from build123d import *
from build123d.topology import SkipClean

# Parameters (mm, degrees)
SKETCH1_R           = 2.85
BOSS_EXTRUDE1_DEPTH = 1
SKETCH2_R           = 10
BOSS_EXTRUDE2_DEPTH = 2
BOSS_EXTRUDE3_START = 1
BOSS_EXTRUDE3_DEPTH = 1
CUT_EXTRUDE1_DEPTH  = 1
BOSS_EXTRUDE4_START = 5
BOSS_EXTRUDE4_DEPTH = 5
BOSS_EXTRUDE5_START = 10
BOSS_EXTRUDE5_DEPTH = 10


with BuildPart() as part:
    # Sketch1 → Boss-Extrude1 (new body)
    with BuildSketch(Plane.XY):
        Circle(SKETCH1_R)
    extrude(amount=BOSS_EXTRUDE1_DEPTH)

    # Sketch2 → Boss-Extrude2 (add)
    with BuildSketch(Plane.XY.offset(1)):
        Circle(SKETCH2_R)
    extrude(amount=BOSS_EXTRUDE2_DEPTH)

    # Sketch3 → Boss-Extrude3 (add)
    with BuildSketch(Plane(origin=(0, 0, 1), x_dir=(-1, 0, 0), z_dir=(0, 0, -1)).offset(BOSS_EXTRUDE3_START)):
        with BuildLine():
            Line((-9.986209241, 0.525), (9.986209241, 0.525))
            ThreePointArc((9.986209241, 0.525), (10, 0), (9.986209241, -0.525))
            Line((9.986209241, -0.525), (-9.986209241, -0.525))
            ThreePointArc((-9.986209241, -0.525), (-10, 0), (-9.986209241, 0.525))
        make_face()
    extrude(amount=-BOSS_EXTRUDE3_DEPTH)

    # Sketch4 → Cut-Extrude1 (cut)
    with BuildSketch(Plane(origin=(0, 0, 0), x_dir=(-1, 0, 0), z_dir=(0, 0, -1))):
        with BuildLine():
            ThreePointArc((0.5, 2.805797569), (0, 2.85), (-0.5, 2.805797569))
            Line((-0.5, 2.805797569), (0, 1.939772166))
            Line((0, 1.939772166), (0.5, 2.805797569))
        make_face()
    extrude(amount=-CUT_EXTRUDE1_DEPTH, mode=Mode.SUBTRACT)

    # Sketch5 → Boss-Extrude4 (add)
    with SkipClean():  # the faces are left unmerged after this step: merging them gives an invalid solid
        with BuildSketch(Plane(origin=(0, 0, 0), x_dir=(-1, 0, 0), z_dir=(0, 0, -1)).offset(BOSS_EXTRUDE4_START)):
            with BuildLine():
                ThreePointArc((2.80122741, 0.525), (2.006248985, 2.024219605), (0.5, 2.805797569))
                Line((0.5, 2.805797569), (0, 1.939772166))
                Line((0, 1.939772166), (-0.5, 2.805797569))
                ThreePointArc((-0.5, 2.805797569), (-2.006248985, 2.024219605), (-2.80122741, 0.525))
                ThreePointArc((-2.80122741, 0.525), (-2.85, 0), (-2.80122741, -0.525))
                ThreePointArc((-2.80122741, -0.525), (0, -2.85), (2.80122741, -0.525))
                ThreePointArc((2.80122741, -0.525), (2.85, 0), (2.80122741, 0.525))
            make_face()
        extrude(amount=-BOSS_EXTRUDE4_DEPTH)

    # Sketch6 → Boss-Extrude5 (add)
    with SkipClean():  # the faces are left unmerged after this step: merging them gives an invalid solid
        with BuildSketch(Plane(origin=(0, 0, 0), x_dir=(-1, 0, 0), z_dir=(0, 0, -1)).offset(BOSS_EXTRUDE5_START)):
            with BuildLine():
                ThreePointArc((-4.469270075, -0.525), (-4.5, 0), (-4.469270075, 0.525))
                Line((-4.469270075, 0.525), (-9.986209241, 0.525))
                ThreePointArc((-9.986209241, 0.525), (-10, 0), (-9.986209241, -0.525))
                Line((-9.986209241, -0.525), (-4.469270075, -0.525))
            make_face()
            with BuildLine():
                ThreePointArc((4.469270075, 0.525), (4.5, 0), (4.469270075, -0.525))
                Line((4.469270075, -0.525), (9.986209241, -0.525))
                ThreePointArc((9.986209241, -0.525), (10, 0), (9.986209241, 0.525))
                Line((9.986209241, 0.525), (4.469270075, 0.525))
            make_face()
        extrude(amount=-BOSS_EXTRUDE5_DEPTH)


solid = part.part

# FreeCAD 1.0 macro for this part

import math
import FreeCAD as App
import Part
import Sketcher
Q = App.Units.Quantity

doc = App.newDocument("Part")
body = doc.addObject("PartDesign::Body", "Body")

# Sketch on XY plane
sketch1 = doc.addObject("Sketcher::SketchObject", "Sketch")
body.addObject(sketch1)
sketch1.AttachmentSupport = (doc.XY_Plane, [""])
sketch1.MapMode = "FlatFace"
sketch1.addGeometry(Part.Circle(App.Vector(0, 0, 0), App.Vector(0, 0, 1), 2.9), False)
sketch1.addConstraint([
    Sketcher.Constraint("Coincident", 0, 3, -1, 1),
    Sketcher.Constraint("Diameter", 0, 5.7),
])
pad1 = doc.addObject("PartDesign::Pad", "Pad")
body.addObject(pad1)
pad1.Profile = sketch1
pad1.Length = 1

# Sketch on XY plane
sketch2 = doc.addObject("Sketcher::SketchObject", "Sketch001")
body.addObject(sketch2)
sketch2.AttachmentSupport = (doc.XY_Plane, [""])
sketch2.MapMode = "FlatFace"
sketch2.AttachmentOffset = App.Placement(App.Vector(0, 0, 1), App.Rotation())
sketch2.addGeometry(Part.Circle(App.Vector(0, 0, 0), App.Vector(0, 0, 1), 10), False)
sketch2.addConstraint([
    Sketcher.Constraint("Coincident", 0, 3, -1, 1),
    Sketcher.Constraint("Diameter", 0, 20.0),
])
pad2 = doc.addObject("PartDesign::Pad", "Pad001")
body.addObject(pad2)
pad2.Profile = sketch2
pad2.Length = 2

# Sketch on XY plane
sketch3 = doc.addObject("Sketcher::SketchObject", "Sketch002")
body.addObject(sketch3)
sketch3.AttachmentSupport = (doc.XY_Plane, [""])
sketch3.MapMode = "FlatFace"
sketch3.addGeometry([
    Part.LineSegment(App.Vector(-10, 0.5, 0), App.Vector(10, 0.5, 0)),
    Part.ArcOfCircle(Part.Circle(App.Vector(0, 0, 0), App.Vector(0, 0, 1), 10), math.radians(-3.01), math.radians(3.01)),
    Part.LineSegment(App.Vector(10, -0.5, 0), App.Vector(-10, -0.5, 0)),
    Part.ArcOfCircle(Part.Circle(App.Vector(0, 0, 0), App.Vector(0, 0, 1), 10), math.radians(176.99), math.radians(183.01)),
], False)
sketch3.addConstraint([
    Sketcher.Constraint("Coincident", 0, 2, 1, 2),
    Sketcher.Constraint("Coincident", 1, 1, 2, 1),
    Sketcher.Constraint("Coincident", 2, 2, 3, 2),
    Sketcher.Constraint("Coincident", 3, 1, 0, 1),
    Sketcher.Constraint("Horizontal", 0),
    Sketcher.Constraint("Horizontal", 2),
    Sketcher.Constraint("Coincident", 1, 3, -1, 1),
    Sketcher.Constraint("Coincident", 3, 3, -1, 1),
    Sketcher.Constraint("Equal", 1, 3),
    Sketcher.Constraint("Vertical", 0, 2, 1, 1),
    Sketcher.Constraint("Radius", 1, 10.0),
    Sketcher.Constraint("DistanceY", 1, 1, 0, 2, 1.05),
])
pad3 = doc.addObject("PartDesign::Pad", "Pad002")
body.addObject(pad3)
pad3.Profile = sketch3
pad3.Length = 1

# Sketch on XY plane
sketch4 = doc.addObject("Sketcher::SketchObject", "Sketch003")
body.addObject(sketch4)
sketch4.AttachmentSupport = (doc.XY_Plane, [""])
sketch4.MapMode = "FlatFace"
sketch4.addGeometry([
    Part.ArcOfCircle(Part.Circle(App.Vector(0, 0, 0), App.Vector(0, 0, 1), 2.8), math.radians(80), math.radians(100)),
    Part.LineSegment(App.Vector(0.5, 2.8, 0), App.Vector(0, 1.9, 0)),
    Part.LineSegment(App.Vector(0, 1.9, 0), App.Vector(-0.5, 2.8, 0)),
], False)
sketch4.addConstraint([
    Sketcher.Constraint("Coincident", 0, 1, 1, 1),
    Sketcher.Constraint("Coincident", 1, 2, 2, 1),
    Sketcher.Constraint("Coincident", 2, 2, 0, 2),
    Sketcher.Constraint("Coincident", 0, 3, -1, 1),
    Sketcher.Constraint("PointOnObject", 1, 2, -2),
    Sketcher.Constraint("Horizontal", 0, 1, 2, 2),
    Sketcher.Constraint("Angle", 1, Q("-120 deg")),
    Sketcher.Constraint("Radius", 0, 2.85),
    Sketcher.Constraint("Distance", 1, 1.0),
])
pocket1 = doc.addObject("PartDesign::Pocket", "Pocket")
body.addObject(pocket1)
pocket1.Profile = sketch4
pocket1.Length = 1
pocket1.Reversed = True

# Sketch on XY plane
sketch5 = doc.addObject("Sketcher::SketchObject", "Sketch004")
body.addObject(sketch5)
sketch5.AttachmentSupport = (doc.XY_Plane, [""])
sketch5.MapMode = "FlatFace"
sketch5.AttachmentOffset = App.Placement(App.Vector(0, 0, -5), App.Rotation())
sketch5.addGeometry([
    Part.ArcOfCircle(Part.Circle(App.Vector(0, 0, 0), App.Vector(0, 0, 1), 2.9), math.radians(100), math.radians(169)),  # 0
    Part.LineSegment(App.Vector(-0.5, 2.8, 0), App.Vector(0, 1.9, 0)),  # 1
    Part.LineSegment(App.Vector(0, 1.9, 0), App.Vector(0.5, 2.8, 0)),  # 2
    Part.ArcOfCircle(Part.Circle(App.Vector(0, 0, 0), App.Vector(0, 0, 1), 2.9), math.radians(11), math.radians(80)),  # 3
    Part.ArcOfCircle(Part.Circle(App.Vector(0, 0, 0), App.Vector(0, 0, 1), 2.9), math.radians(-11), math.radians(11)),  # 4
    Part.ArcOfCircle(Part.Circle(App.Vector(0, 0, 0), App.Vector(0, 0, 1), 2.9), math.radians(-169), math.radians(-11)),  # 5
    Part.ArcOfCircle(Part.Circle(App.Vector(0, 0, 0), App.Vector(0, 0, 1), 2.9), math.radians(169), math.radians(191)),  # 6
], False)
sketch5.addConstraint([
    Sketcher.Constraint("Coincident", 0, 1, 1, 1),
    Sketcher.Constraint("Coincident", 1, 2, 2, 1),
    Sketcher.Constraint("Coincident", 2, 2, 3, 2),
    Sketcher.Constraint("Tangent", 3, 1, 4, 2),
    Sketcher.Constraint("Tangent", 4, 1, 5, 2),
    Sketcher.Constraint("Tangent", 5, 1, 6, 2),
    Sketcher.Constraint("Tangent", 6, 1, 0, 2),
    Sketcher.Constraint("Coincident", 0, 3, -1, 1),
    Sketcher.Constraint("Coincident", 3, 3, -1, 1),
    Sketcher.Constraint("Coincident", 5, 3, -1, 1),
    Sketcher.Constraint("PointOnObject", 1, 2, -2),
    Sketcher.Constraint("Horizontal", 0, 1, 2, 2),
    Sketcher.Constraint("Horizontal", 4, 1, 5, 1),
    Sketcher.Constraint("Horizontal", 3, 1, 6, 1),
    Sketcher.Constraint("Vertical", 3, 1, 4, 1),
    Sketcher.Constraint("Angle", 1, Q("-60 deg")),
    Sketcher.Constraint("Radius", 0, 2.85),
    Sketcher.Constraint("Distance", 1, 1.0),
    Sketcher.Constraint("DistanceY", 4, 1, 3, 1, 1.05),
])
pad4 = doc.addObject("PartDesign::Pad", "Pad003")
body.addObject(pad4)
pad4.Profile = sketch5
pad4.Length = 5

# Sketch on XY plane
sketch6 = doc.addObject("Sketcher::SketchObject", "Sketch005")
body.addObject(sketch6)
sketch6.AttachmentSupport = (doc.XY_Plane, [""])
sketch6.MapMode = "FlatFace"
sketch6.AttachmentOffset = App.Placement(App.Vector(0, 0, -10), App.Rotation())
sketch6.addGeometry([
    Part.ArcOfCircle(Part.Circle(App.Vector(0, 0, 0), App.Vector(0, 0, 1), 4.5), math.radians(-6.7), math.radians(6.7)),  # 0
    Part.LineSegment(App.Vector(4.5, 0.5, 0), App.Vector(10, 0.5, 0)),  # 1
    Part.ArcOfCircle(Part.Circle(App.Vector(0, 0, 0), App.Vector(0, 0, 1), 10), math.radians(-3.01), math.radians(3.01)),  # 2
    Part.LineSegment(App.Vector(10, -0.5, 0), App.Vector(4.5, -0.5, 0)),  # 3
    Part.ArcOfCircle(Part.Circle(App.Vector(0, 0, 0), App.Vector(0, 0, 1), 4.5), math.radians(173.3), math.radians(186.7)),  # 4
    Part.LineSegment(App.Vector(-4.5, -0.5, 0), App.Vector(-10, -0.5, 0)),  # 5
    Part.ArcOfCircle(Part.Circle(App.Vector(0, 0, 0), App.Vector(0, 0, 1), 10), math.radians(176.99), math.radians(183.01)),  # 6
    Part.LineSegment(App.Vector(-10, 0.5, 0), App.Vector(-4.5, 0.5, 0)),  # 7
], False)
sketch6.addConstraint([
    Sketcher.Constraint("Coincident", 0, 2, 1, 1),
    Sketcher.Constraint("Coincident", 1, 2, 2, 2),
    Sketcher.Constraint("Coincident", 2, 1, 3, 1),
    Sketcher.Constraint("Coincident", 3, 2, 0, 1),
    Sketcher.Constraint("Coincident", 4, 2, 5, 1),
    Sketcher.Constraint("Coincident", 5, 2, 6, 2),
    Sketcher.Constraint("Coincident", 6, 1, 7, 1),
    Sketcher.Constraint("Coincident", 7, 2, 4, 1),
    Sketcher.Constraint("Horizontal", 1),
    Sketcher.Constraint("Horizontal", 3),
    Sketcher.Constraint("Horizontal", 5),
    Sketcher.Constraint("Horizontal", 7),
    Sketcher.Constraint("Coincident", 0, 3, -1, 1),
    Sketcher.Constraint("Coincident", 2, 3, -1, 1),
    Sketcher.Constraint("Coincident", 4, 3, -1, 1),
    Sketcher.Constraint("Coincident", 6, 3, -1, 1),
    Sketcher.Constraint("Equal", 0, 4),
    Sketcher.Constraint("Equal", 2, 6),
    Sketcher.Constraint("Horizontal", 3, 2, 4, 2),
    Sketcher.Constraint("Horizontal", 1, 2, 6, 1),
    Sketcher.Constraint("Vertical", 1, 2, 2, 1),
    Sketcher.Constraint("Radius", 2, 10.0),
    Sketcher.Constraint("Radius", 0, 4.5),
    Sketcher.Constraint("DistanceY", 2, 1, 1, 2, 1.05),
])
pad5 = doc.addObject("PartDesign::Pad", "Pad004")
body.addObject(pad5)
pad5.Profile = sketch6
pad5.Length = 10

doc.recompute()
